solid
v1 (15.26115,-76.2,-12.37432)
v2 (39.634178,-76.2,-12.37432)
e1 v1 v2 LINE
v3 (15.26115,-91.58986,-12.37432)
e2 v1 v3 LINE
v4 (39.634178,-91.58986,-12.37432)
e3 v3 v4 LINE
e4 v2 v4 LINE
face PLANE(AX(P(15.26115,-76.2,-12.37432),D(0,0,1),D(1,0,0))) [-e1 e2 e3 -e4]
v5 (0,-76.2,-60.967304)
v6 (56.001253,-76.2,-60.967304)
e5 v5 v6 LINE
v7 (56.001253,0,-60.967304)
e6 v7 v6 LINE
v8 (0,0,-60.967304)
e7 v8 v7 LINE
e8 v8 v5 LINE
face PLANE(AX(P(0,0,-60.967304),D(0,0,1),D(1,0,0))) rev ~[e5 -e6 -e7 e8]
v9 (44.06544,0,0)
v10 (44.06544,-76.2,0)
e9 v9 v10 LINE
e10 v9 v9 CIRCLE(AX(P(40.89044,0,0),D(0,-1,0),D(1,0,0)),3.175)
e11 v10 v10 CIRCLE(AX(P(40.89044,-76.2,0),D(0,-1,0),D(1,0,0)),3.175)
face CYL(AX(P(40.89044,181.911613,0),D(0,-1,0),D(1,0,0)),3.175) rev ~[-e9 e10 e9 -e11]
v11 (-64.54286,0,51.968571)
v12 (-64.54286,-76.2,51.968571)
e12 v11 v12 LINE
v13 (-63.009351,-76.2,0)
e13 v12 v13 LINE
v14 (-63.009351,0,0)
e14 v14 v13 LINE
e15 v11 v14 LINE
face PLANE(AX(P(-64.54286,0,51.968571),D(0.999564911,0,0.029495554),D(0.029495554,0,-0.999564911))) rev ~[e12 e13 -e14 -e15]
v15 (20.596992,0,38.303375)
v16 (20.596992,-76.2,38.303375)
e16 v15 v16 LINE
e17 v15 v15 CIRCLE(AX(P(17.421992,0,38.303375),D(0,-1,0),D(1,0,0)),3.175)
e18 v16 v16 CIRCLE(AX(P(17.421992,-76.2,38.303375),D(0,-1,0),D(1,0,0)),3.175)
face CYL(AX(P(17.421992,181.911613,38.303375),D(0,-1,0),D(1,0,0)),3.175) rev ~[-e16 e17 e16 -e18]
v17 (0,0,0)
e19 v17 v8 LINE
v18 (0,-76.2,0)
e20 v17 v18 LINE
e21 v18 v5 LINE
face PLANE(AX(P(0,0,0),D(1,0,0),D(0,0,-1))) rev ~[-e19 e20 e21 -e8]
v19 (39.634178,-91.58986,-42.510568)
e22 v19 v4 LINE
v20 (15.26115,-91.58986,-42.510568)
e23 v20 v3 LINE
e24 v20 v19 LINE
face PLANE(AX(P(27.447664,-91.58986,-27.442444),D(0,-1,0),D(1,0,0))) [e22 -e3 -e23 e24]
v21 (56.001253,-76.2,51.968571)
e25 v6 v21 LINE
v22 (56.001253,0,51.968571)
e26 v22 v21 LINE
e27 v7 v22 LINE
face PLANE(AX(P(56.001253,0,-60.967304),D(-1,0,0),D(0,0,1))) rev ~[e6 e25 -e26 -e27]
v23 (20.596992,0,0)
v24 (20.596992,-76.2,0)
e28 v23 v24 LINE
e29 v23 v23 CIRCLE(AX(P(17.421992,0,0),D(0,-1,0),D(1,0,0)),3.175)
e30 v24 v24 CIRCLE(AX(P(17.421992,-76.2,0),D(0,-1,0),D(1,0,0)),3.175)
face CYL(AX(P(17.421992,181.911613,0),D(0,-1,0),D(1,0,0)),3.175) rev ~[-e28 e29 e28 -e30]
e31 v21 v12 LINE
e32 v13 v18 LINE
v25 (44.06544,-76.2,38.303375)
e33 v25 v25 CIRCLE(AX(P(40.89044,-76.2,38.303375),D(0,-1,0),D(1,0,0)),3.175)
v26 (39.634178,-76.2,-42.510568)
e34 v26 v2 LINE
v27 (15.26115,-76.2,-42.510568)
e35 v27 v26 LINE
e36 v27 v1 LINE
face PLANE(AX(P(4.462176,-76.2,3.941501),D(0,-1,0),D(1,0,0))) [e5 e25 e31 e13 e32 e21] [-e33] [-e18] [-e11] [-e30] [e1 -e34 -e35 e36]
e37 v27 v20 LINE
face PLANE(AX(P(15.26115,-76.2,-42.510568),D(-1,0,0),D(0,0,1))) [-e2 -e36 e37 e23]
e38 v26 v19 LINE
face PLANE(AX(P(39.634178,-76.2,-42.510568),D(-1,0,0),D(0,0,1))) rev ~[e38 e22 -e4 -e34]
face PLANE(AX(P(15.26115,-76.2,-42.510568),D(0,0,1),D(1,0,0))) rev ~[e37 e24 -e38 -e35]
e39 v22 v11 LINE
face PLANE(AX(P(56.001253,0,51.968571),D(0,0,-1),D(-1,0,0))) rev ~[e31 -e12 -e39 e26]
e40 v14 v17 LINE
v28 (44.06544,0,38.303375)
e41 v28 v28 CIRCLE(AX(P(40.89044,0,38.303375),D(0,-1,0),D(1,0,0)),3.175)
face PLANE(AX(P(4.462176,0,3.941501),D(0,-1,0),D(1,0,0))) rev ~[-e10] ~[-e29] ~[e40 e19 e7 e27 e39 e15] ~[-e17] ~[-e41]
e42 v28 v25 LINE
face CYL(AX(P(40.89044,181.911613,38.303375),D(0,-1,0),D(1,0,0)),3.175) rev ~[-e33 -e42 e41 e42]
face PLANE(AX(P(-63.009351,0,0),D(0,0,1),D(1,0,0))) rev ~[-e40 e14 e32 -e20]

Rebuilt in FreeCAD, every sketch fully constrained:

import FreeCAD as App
import Part
import Sketcher
from FreeCAD import Vector
Q = App.Units.Quantity

doc = App.newDocument("Part")
body = doc.addObject("PartDesign::Body", "Body")

# Sketch on XZ plane
sketch1 = body.newObject("Sketcher::SketchObject", "Sketch")
sketch1.AttachmentSupport = (doc.getObject("XZ_Plane"), [""])
sketch1.MapMode = "FlatFace"
sketch1.addGeometry([
    Part.LineSegment(Vector(-65, 52, 0), Vector(-63, 0, 0)),  # 0
    Part.LineSegment(Vector(-63, 0, 0), Vector(0, 0, 0)),  # 1
    Part.LineSegment(Vector(0, 0, 0), Vector(0, -61, 0)),  # 2
    Part.LineSegment(Vector(0, -61, 0), Vector(56, -61, 0)),  # 3
    Part.LineSegment(Vector(56, -61, 0), Vector(56, 52, 0)),  # 4
    Part.LineSegment(Vector(56, 52, 0), Vector(-65, 52, 0)),  # 5
], False)
sketch1.addConstraint([
    Sketcher.Constraint("Coincident", 0, 2, 1, 1),
    Sketcher.Constraint("Coincident", 1, 2, 2, 1),
    Sketcher.Constraint("Coincident", 2, 2, 3, 1),
    Sketcher.Constraint("Coincident", 3, 2, 4, 1),
    Sketcher.Constraint("Coincident", 4, 2, 5, 1),
    Sketcher.Constraint("Coincident", 5, 2, 0, 1),
    Sketcher.Constraint("Horizontal", 1),
    Sketcher.Constraint("Vertical", 2),
    Sketcher.Constraint("Horizontal", 3),
    Sketcher.Constraint("Vertical", 4),
    Sketcher.Constraint("Horizontal", 5),
    Sketcher.Constraint("Coincident", 1, 2, -1, 1),
    Sketcher.Constraint("DistanceX", 1, 1, 1, 2, Q("63.009351 mm")),
    Sketcher.Constraint("Distance", 0, Q("51.991192 mm")),
    Sketcher.Constraint("DistanceX", 3, 1, 3, 2, Q("56.001253 mm")),
    Sketcher.Constraint("DistanceX", 5, 2, 5, 1, Q("120.544113 mm")),
    Sketcher.Constraint("DistanceY", 2, 2, 2, 1, Q("60.967304 mm")),
])
pad1 = body.newObject("PartDesign::Pad", "Pad")
pad1.Profile = sketch1
pad1.Length = Q("3 in")

# Sketch on XZ plane
sketch2 = body.newObject("Sketcher::SketchObject", "Sketch001")
sketch2.AttachmentSupport = (doc.getObject("XZ_Plane"), [""])
sketch2.MapMode = "FlatFace"
sketch2.addGeometry([
    Part.Circle(Vector(40.9, 38.3, 0), Vector(0, 0, 1), 3.2),
    Part.Circle(Vector(17.4, 38.3, 0), Vector(0, 0, 1), 3.2),
    Part.Circle(Vector(17.4, 0, 0), Vector(0, 0, 1), 3.2),
    Part.Circle(Vector(40.9, 0, 0), Vector(0, 0, 1), 3.2),
], False)
sketch2.addConstraint([
    Sketcher.Constraint("Equal", 0, 1),
    Sketcher.Constraint("Equal", 1, 2),
    Sketcher.Constraint("Equal", 2, 3),
    Sketcher.Constraint("PointOnObject", 2, 3, -1),
    Sketcher.Constraint("PointOnObject", 3, 3, -1),
    Sketcher.Constraint("Horizontal", 0, 3, 1, 3),
    Sketcher.Constraint("Vertical", 1, 3, 2, 3),
    Sketcher.Constraint("Vertical", 0, 3, 3, 3),
    Sketcher.Constraint("Diameter", 0, Q("0.25 in")),
    Sketcher.Constraint("DistanceX", -1, 1, 0, 3, Q("40.89044 mm")),
    Sketcher.Constraint("DistanceX", -1, 1, 1, 3, Q("17.421992 mm")),
    Sketcher.Constraint("DistanceY", -1, 1, 0, 3, Q("38.303375 mm")),
])
doc.recompute()
hole = body.newObject("PartDesign::Hole", "Hole")
hole.Profile = sketch2
hole.ThreadType = "None"
hole.Diameter = Q("0.25 in")
hole.DepthType = "ThroughAll"
hole.Reversed = True

# Sketch on XZ plane
sketch3 = body.newObject("Sketcher::SketchObject", "Sketch002")
sketch3.AttachmentSupport = (doc.getObject("XZ_Plane"), [""])
sketch3.MapMode = "FlatFace"
sketch3.AttachmentOffset = App.Placement(Vector(0, 0, 3 * 25.4), App.Rotation())
sketch3.addGeometry([
    Part.LineSegment(Vector(15, -12, 0), Vector(15, -43, 0)),
    Part.LineSegment(Vector(15, -43, 0), Vector(40, -43, 0)),
    Part.LineSegment(Vector(40, -43, 0), Vector(40, -12, 0)),
    Part.LineSegment(Vector(40, -12, 0), Vector(15, -12, 0)),
], False)
sketch3.addConstraint([
    Sketcher.Constraint("Coincident", 0, 2, 1, 1),
    Sketcher.Constraint("Coincident", 1, 2, 2, 1),
    Sketcher.Constraint("Coincident", 2, 2, 3, 1),
    Sketcher.Constraint("Coincident", 3, 2, 0, 1),
    Sketcher.Constraint("Vertical", 0),
    Sketcher.Constraint("Horizontal", 1),
    Sketcher.Constraint("Vertical", 2),
    Sketcher.Constraint("Horizontal", 3),
    Sketcher.Constraint("DistanceX", 1, 1, 1, 2, Q("24.373029 mm")),
    Sketcher.Constraint("DistanceY", 0, 2, 0, 1, Q("30.136249 mm")),
    Sketcher.Constraint("DistanceX", -1, 1, 0, 2, Q("15.26115 mm")),
    Sketcher.Constraint("DistanceY", 0, 2, -1, 1, Q("42.510568 mm")),
])
pad2 = body.newObject("PartDesign::Pad", "Pad001")
pad2.Profile = sketch3
pad2.Length = Q("0.6059 in")

doc.recompute()
